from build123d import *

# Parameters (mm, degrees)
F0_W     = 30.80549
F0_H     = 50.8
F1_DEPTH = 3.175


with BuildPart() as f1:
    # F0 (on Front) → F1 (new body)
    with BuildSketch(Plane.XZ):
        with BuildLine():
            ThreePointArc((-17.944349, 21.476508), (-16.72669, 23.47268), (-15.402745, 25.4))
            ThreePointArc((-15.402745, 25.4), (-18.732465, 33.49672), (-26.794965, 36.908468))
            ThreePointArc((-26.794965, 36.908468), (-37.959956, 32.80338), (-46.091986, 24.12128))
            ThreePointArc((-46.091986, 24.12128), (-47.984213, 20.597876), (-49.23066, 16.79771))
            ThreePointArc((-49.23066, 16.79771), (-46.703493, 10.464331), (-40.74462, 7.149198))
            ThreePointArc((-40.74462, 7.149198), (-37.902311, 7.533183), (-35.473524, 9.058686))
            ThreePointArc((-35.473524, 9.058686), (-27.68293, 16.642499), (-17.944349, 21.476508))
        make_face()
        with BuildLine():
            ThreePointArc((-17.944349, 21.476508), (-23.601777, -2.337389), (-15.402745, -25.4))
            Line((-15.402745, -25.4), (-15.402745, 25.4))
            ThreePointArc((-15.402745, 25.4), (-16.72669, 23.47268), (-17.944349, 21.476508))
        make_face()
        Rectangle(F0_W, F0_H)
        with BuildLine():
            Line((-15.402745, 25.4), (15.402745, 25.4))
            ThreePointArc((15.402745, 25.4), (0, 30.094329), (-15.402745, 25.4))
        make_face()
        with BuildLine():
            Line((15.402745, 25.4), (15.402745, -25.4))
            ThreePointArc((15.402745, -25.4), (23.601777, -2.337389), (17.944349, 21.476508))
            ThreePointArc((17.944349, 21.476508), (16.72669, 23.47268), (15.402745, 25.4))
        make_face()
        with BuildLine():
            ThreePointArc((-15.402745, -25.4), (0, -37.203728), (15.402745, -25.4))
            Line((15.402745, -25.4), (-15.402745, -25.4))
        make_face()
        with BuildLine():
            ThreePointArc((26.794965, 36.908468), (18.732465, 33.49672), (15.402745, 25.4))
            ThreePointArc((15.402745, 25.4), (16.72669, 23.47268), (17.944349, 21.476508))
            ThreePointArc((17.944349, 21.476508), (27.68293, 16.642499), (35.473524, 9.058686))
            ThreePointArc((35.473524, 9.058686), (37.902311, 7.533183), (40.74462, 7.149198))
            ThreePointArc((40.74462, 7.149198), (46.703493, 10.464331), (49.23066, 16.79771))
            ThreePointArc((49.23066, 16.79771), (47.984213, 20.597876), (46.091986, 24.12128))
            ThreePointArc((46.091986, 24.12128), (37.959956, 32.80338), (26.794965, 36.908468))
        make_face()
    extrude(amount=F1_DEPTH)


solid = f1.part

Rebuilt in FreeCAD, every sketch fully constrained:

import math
import FreeCAD as App
import Part
import Sketcher
from FreeCAD import Vector
Q = App.Units.Quantity

doc = App.newDocument("Part")
body = doc.addObject("PartDesign::Body", "Body")

# Sketch on XZ plane
sketch1 = body.newObject("Sketcher::SketchObject", "Sketch")
sketch1.AttachmentSupport = (doc.getObject("XZ_Plane"), [""])
sketch1.MapMode = "FlatFace"
sketch1.addGeometry([
    Part.ArcOfCircle(Part.Circle(Vector(-27, 25, 0), Vector(0, 0, 1), 12), math.radians(0), math.radians(89)),  # 0
    Part.ArcOfCircle(Part.Circle(Vector(-24, 11, 0), Vector(0, 0, 1), 26), math.radians(97), math.radians(150)),  # 1
    Part.ArcOfCircle(Part.Circle(Vector(-27, 12, 0), Vector(0, 0, 1), 23), math.radians(147), math.radians(167)),  # 2
    Part.ArcOfCircle(Part.Circle(Vector(-39, 17, 0), Vector(0, 0, 1), 10), math.radians(-178), math.radians(-100)),  # 3
    Part.ArcOfCircle(Part.Circle(Vector(-40, 14, 0), Vector(0, 0, 1), 7), math.radians(-95), math.radians(-46)),  # 4
    Part.ArcOfCircle(Part.Circle(Vector(-7, -12, 0), Vector(0, 0, 1), 35), math.radians(107), math.radians(143)),  # 5
    Part.ArcOfCircle(Part.Circle(Vector(20, 0, 0), Vector(0, 0, 1), 43), math.radians(150), math.radians(216)),  # 6
    Part.ArcOfCircle(Part.Circle(Vector(0, -21, 0), Vector(0, 0, 1), 16), math.radians(-165), math.radians(-15)),  # 7
    Part.ArcOfCircle(Part.Circle(Vector(-20, 0, 0), Vector(0, 0, 1), 43), math.radians(-36), math.radians(30)),  # 8
    Part.ArcOfCircle(Part.Circle(Vector(7, -12, 0), Vector(0, 0, 1), 35), math.radians(37), math.radians(73)),  # 9
    Part.ArcOfCircle(Part.Circle(Vector(40, 14, 0), Vector(0, 0, 1), 7), math.radians(-134), math.radians(-85)),  # 10
    Part.ArcOfCircle(Part.Circle(Vector(39, 17, 0), Vector(0, 0, 1), 10), math.radians(-80), math.radians(-2)),  # 11
    Part.ArcOfCircle(Part.Circle(Vector(27, 12, 0), Vector(0, 0, 1), 23), math.radians(13), math.radians(33)),  # 12
    Part.ArcOfCircle(Part.Circle(Vector(24, 11, 0), Vector(0, 0, 1), 26), math.radians(30), math.radians(83)),  # 13
    Part.ArcOfCircle(Part.Circle(Vector(27, 25, 0), Vector(0, 0, 1), 12), math.radians(91), math.radians(180)),  # 14
    Part.ArcOfCircle(Part.Circle(Vector(0, 2, 0), Vector(0, 0, 1), 28), math.radians(56), math.radians(124)),  # 15
], False)
sketch1.addConstraint([
    Sketcher.Constraint("Coincident", 0, 2, 1, 1),
    Sketcher.Constraint("Coincident", 1, 2, 2, 1),
    Sketcher.Constraint("Coincident", 2, 2, 3, 1),
    Sketcher.Constraint("Coincident", 3, 2, 4, 1),
    Sketcher.Constraint("Coincident", 4, 2, 5, 2),
    Sketcher.Constraint("Coincident", 5, 1, 6, 1),
    Sketcher.Constraint("Coincident", 6, 2, 7, 1),
    Sketcher.Constraint("Coincident", 7, 2, 8, 1),
    Sketcher.Constraint("Coincident", 8, 2, 9, 2),
    Sketcher.Constraint("Coincident", 9, 1, 10, 1),
    Sketcher.Constraint("Coincident", 10, 2, 11, 1),
    Sketcher.Constraint("Coincident", 11, 2, 12, 1),
    Sketcher.Constraint("Coincident", 12, 2, 13, 1),
    Sketcher.Constraint("Coincident", 13, 2, 14, 1),
    Sketcher.Constraint("Coincident", 14, 2, 15, 1),
    Sketcher.Constraint("Coincident", 15, 2, 0, 1),
    Sketcher.Constraint("Equal", 6, 8),
    Sketcher.Constraint("Equal", 5, 9),
    Sketcher.Constraint("Equal", 4, 10),
    Sketcher.Constraint("Equal", 3, 11),
    Sketcher.Constraint("Equal", 2, 12),
    Sketcher.Constraint("Equal", 1, 13),
    Sketcher.Constraint("Equal", 0, 14),
    Sketcher.Constraint("Symmetric", 6, 3, 8, 3, -1, 1),
    Sketcher.Constraint("Symmetric", 6, 2, 14, 2, -1, 1),
    Sketcher.Constraint("Symmetric", 7, 2, 15, 2, -1, 1),
    Sketcher.Constraint("Symmetric", 5, 3, 9, 3, -2),
    Sketcher.Constraint("Symmetric", 4, 3, 10, 3, -2),
    Sketcher.Constraint("Symmetric", 3, 3, 11, 3, -2),
    Sketcher.Constraint("Symmetric", 2, 3, 12, 3, -2),
    Sketcher.Constraint("Symmetric", 1, 3, 13, 3, -2),
    Sketcher.Constraint("Symmetric", 0, 3, 14, 3, -2),
    Sketcher.Constraint("PointOnObject", 6, 3, -1),
    Sketcher.Constraint("Horizontal", 0, 3, 14, 2),
    Sketcher.Constraint("DistanceY", -1, 1, 0, 3, Q("1 in")),
    Sketcher.Constraint("Radius", 1, Q("25.772402 mm")),
    Sketcher.Constraint("Radius", 0, Q("11.50906 mm")),
    Sketcher.Constraint("Radius", 5, Q("35.077709 mm")),
    Sketcher.Constraint("Radius", 6, Q("43.173328 mm")),
    Sketcher.Constraint("Radius", 2, Q("22.765703 mm")),
    Sketcher.Constraint("Radius", 3, Q("10.174307 mm")),
    Sketcher.Constraint("Radius", 4, Q("6.775468 mm")),
    Sketcher.Constraint("Radius", 7, Q("15.951424 mm")),
    Sketcher.Constraint("Radius", 15, Q("27.616437 mm")),
    Sketcher.Constraint("DistanceX", 0, 3, 0, 2, Q("0.0046 in")),
    Sketcher.Constraint("DistanceX", 14, 2, 13, 3, Q("0.3275999 in")),
    Sketcher.Constraint("DistanceY", -1, 1, 10, 2, Q("7.149198 mm")),
    Sketcher.Constraint("DistanceX", 5, 3, 6, 3, Q("26.914199 mm")),
    Sketcher.Constraint("DistanceX", 2, 3, 8, 3, Q("7.550999 mm")),
    Sketcher.Constraint("DistanceY", 4, 2, 3, 3, Q("8.125 mm")),
    Sketcher.Constraint("DistanceX", 2, 3, -1, 1, Q("27.059231 mm")),
    Sketcher.Constraint("DistanceY", -1, 1, 4, 3, Q("13.903542 mm")),
    Sketcher.Constraint("DistanceY", 5, 3, -1, 1, Q("11.980751 mm")),
    Sketcher.Constraint("DistanceY", -1, 1, 1, 2, Q("24.12128 mm")),
    Sketcher.Constraint("DistanceX", 2, 2, -1, 1, Q("49.23066 mm")),
])
pad1 = body.newObject("PartDesign::Pad", "Pad")
pad1.Profile = sketch1
pad1.Length = Q("0.125 in")

doc.recompute()
